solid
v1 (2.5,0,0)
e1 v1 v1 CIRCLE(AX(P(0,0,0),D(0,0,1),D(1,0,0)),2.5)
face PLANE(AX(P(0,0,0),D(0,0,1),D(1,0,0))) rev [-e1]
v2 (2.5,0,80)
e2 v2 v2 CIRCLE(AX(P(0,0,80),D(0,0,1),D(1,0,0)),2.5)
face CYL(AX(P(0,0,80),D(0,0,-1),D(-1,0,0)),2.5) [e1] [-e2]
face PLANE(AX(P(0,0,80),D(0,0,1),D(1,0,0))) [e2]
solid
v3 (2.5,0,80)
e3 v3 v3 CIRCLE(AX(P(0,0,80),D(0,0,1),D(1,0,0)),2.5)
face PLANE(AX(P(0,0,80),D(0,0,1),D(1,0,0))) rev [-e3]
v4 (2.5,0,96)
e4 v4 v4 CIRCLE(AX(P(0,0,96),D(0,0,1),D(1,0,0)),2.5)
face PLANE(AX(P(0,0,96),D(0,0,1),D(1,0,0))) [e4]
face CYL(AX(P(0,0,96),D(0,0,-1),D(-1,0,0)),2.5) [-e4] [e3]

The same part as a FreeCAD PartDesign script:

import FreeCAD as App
import Part
import Sketcher

doc = App.newDocument("Part")
params = doc.addObject("Spreadsheet::Sheet", "Params")
for row, (alias, value) in enumerate([
    ("sketch1_diameter", "5 mm"),
    ("pad1_length", "80 mm"),
    ("sketch2_diameter", "5 mm"),
    ("pad2_length", "16 mm"),
], start=1):
    params.set(f"A{row}", alias)
    params.set(f"B{row}", "=" + value)
    params.setAlias(f"B{row}", alias)

body = doc.addObject("PartDesign::Body", "Body")

# Sketch on XY plane
sketch1 = body.newObject("Sketcher::SketchObject", "Sketch")
sketch1.AttachmentSupport = (doc.getObject("XY_Plane"), [""])
sketch1.MapMode = "FlatFace"
sketch1.addGeometry(Part.Circle(App.Vector(0, 0, 0), App.Vector(0, 0, 1), 2.5), False)
sketch1.addConstraint(Sketcher.Constraint("Coincident", 0, 3, -1, 1))
sketch1.addConstraint(Sketcher.Constraint("Diameter", 0, 5.0))
sketch1.setExpression("Constraints[1]", "Params.sketch1_diameter")
pad1 = body.newObject("PartDesign::Pad", "Pad")
pad1.Profile = sketch1
pad1.setExpression("Length", "Params.pad1_length")
body2 = doc.addObject("PartDesign::Body", "Body001")

# Sketch on XY plane
sketch2 = body2.newObject("Sketcher::SketchObject", "Sketch001")
sketch2.AttachmentSupport = (doc.getObject("XY_Plane001"), [""])
sketch2.MapMode = "FlatFace"
sketch2.AttachmentOffset = App.Placement(App.Vector(0, 0, 80), App.Rotation())
sketch2.addGeometry(Part.Circle(App.Vector(0, 0, 0), App.Vector(0, 0, 1), 2.5), False)
sketch2.addConstraint(Sketcher.Constraint("Coincident", 0, 3, -1, 1))
sketch2.addConstraint(Sketcher.Constraint("Diameter", 0, 5.0))
sketch2.setExpression("Constraints[1]", "Params.sketch2_diameter")
pad2 = body2.newObject("PartDesign::Pad", "Pad001")
pad2.Profile = sketch2
pad2.setExpression("Length", "Params.pad2_length")

doc.recompute()
